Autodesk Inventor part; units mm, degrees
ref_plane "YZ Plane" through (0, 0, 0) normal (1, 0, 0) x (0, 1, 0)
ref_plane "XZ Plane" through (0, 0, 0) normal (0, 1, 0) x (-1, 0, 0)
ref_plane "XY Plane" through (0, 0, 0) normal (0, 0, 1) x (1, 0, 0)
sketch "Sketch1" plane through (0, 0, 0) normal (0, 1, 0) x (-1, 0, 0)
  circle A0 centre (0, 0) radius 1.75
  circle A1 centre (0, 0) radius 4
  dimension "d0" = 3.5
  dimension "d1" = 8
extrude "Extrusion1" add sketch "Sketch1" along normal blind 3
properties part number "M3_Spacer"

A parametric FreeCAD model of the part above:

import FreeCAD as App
import Part
import Sketcher

V = App.Vector
Q = App.Units.Quantity

doc = App.newDocument("Part")
body = doc.addObject("PartDesign::Body", "Body")

# Sketch on XZ plane
sketch1 = body.newObject("Sketcher::SketchObject", "Sketch")
sketch1.AttachmentSupport = (doc.getObject("XZ_Plane"), [""])
sketch1.MapMode = "FlatFace"
sketch1.addGeometry(Part.Circle(V(0, 0, 0), V(0, 0, 1), 4), False)
sketch1.addGeometry(Part.Circle(V(0, 0, 0), V(0, 0, 1), 1.8), False)
sketch1.addConstraint(Sketcher.Constraint("Coincident", 0, 3, -1, 1))
sketch1.addConstraint(Sketcher.Constraint("Coincident", 1, 3, -1, 1))
sketch1.addConstraint(Sketcher.Constraint("Diameter", 0, Q("8 mm")))
sketch1.addConstraint(Sketcher.Constraint("Diameter", 1, Q("3.5 mm")))
pad1 = body.newObject("PartDesign::Pad", "Pad")
pad1.Profile = sketch1
pad1.Length = 3
pad1.Reversed = True

doc.recompute()
